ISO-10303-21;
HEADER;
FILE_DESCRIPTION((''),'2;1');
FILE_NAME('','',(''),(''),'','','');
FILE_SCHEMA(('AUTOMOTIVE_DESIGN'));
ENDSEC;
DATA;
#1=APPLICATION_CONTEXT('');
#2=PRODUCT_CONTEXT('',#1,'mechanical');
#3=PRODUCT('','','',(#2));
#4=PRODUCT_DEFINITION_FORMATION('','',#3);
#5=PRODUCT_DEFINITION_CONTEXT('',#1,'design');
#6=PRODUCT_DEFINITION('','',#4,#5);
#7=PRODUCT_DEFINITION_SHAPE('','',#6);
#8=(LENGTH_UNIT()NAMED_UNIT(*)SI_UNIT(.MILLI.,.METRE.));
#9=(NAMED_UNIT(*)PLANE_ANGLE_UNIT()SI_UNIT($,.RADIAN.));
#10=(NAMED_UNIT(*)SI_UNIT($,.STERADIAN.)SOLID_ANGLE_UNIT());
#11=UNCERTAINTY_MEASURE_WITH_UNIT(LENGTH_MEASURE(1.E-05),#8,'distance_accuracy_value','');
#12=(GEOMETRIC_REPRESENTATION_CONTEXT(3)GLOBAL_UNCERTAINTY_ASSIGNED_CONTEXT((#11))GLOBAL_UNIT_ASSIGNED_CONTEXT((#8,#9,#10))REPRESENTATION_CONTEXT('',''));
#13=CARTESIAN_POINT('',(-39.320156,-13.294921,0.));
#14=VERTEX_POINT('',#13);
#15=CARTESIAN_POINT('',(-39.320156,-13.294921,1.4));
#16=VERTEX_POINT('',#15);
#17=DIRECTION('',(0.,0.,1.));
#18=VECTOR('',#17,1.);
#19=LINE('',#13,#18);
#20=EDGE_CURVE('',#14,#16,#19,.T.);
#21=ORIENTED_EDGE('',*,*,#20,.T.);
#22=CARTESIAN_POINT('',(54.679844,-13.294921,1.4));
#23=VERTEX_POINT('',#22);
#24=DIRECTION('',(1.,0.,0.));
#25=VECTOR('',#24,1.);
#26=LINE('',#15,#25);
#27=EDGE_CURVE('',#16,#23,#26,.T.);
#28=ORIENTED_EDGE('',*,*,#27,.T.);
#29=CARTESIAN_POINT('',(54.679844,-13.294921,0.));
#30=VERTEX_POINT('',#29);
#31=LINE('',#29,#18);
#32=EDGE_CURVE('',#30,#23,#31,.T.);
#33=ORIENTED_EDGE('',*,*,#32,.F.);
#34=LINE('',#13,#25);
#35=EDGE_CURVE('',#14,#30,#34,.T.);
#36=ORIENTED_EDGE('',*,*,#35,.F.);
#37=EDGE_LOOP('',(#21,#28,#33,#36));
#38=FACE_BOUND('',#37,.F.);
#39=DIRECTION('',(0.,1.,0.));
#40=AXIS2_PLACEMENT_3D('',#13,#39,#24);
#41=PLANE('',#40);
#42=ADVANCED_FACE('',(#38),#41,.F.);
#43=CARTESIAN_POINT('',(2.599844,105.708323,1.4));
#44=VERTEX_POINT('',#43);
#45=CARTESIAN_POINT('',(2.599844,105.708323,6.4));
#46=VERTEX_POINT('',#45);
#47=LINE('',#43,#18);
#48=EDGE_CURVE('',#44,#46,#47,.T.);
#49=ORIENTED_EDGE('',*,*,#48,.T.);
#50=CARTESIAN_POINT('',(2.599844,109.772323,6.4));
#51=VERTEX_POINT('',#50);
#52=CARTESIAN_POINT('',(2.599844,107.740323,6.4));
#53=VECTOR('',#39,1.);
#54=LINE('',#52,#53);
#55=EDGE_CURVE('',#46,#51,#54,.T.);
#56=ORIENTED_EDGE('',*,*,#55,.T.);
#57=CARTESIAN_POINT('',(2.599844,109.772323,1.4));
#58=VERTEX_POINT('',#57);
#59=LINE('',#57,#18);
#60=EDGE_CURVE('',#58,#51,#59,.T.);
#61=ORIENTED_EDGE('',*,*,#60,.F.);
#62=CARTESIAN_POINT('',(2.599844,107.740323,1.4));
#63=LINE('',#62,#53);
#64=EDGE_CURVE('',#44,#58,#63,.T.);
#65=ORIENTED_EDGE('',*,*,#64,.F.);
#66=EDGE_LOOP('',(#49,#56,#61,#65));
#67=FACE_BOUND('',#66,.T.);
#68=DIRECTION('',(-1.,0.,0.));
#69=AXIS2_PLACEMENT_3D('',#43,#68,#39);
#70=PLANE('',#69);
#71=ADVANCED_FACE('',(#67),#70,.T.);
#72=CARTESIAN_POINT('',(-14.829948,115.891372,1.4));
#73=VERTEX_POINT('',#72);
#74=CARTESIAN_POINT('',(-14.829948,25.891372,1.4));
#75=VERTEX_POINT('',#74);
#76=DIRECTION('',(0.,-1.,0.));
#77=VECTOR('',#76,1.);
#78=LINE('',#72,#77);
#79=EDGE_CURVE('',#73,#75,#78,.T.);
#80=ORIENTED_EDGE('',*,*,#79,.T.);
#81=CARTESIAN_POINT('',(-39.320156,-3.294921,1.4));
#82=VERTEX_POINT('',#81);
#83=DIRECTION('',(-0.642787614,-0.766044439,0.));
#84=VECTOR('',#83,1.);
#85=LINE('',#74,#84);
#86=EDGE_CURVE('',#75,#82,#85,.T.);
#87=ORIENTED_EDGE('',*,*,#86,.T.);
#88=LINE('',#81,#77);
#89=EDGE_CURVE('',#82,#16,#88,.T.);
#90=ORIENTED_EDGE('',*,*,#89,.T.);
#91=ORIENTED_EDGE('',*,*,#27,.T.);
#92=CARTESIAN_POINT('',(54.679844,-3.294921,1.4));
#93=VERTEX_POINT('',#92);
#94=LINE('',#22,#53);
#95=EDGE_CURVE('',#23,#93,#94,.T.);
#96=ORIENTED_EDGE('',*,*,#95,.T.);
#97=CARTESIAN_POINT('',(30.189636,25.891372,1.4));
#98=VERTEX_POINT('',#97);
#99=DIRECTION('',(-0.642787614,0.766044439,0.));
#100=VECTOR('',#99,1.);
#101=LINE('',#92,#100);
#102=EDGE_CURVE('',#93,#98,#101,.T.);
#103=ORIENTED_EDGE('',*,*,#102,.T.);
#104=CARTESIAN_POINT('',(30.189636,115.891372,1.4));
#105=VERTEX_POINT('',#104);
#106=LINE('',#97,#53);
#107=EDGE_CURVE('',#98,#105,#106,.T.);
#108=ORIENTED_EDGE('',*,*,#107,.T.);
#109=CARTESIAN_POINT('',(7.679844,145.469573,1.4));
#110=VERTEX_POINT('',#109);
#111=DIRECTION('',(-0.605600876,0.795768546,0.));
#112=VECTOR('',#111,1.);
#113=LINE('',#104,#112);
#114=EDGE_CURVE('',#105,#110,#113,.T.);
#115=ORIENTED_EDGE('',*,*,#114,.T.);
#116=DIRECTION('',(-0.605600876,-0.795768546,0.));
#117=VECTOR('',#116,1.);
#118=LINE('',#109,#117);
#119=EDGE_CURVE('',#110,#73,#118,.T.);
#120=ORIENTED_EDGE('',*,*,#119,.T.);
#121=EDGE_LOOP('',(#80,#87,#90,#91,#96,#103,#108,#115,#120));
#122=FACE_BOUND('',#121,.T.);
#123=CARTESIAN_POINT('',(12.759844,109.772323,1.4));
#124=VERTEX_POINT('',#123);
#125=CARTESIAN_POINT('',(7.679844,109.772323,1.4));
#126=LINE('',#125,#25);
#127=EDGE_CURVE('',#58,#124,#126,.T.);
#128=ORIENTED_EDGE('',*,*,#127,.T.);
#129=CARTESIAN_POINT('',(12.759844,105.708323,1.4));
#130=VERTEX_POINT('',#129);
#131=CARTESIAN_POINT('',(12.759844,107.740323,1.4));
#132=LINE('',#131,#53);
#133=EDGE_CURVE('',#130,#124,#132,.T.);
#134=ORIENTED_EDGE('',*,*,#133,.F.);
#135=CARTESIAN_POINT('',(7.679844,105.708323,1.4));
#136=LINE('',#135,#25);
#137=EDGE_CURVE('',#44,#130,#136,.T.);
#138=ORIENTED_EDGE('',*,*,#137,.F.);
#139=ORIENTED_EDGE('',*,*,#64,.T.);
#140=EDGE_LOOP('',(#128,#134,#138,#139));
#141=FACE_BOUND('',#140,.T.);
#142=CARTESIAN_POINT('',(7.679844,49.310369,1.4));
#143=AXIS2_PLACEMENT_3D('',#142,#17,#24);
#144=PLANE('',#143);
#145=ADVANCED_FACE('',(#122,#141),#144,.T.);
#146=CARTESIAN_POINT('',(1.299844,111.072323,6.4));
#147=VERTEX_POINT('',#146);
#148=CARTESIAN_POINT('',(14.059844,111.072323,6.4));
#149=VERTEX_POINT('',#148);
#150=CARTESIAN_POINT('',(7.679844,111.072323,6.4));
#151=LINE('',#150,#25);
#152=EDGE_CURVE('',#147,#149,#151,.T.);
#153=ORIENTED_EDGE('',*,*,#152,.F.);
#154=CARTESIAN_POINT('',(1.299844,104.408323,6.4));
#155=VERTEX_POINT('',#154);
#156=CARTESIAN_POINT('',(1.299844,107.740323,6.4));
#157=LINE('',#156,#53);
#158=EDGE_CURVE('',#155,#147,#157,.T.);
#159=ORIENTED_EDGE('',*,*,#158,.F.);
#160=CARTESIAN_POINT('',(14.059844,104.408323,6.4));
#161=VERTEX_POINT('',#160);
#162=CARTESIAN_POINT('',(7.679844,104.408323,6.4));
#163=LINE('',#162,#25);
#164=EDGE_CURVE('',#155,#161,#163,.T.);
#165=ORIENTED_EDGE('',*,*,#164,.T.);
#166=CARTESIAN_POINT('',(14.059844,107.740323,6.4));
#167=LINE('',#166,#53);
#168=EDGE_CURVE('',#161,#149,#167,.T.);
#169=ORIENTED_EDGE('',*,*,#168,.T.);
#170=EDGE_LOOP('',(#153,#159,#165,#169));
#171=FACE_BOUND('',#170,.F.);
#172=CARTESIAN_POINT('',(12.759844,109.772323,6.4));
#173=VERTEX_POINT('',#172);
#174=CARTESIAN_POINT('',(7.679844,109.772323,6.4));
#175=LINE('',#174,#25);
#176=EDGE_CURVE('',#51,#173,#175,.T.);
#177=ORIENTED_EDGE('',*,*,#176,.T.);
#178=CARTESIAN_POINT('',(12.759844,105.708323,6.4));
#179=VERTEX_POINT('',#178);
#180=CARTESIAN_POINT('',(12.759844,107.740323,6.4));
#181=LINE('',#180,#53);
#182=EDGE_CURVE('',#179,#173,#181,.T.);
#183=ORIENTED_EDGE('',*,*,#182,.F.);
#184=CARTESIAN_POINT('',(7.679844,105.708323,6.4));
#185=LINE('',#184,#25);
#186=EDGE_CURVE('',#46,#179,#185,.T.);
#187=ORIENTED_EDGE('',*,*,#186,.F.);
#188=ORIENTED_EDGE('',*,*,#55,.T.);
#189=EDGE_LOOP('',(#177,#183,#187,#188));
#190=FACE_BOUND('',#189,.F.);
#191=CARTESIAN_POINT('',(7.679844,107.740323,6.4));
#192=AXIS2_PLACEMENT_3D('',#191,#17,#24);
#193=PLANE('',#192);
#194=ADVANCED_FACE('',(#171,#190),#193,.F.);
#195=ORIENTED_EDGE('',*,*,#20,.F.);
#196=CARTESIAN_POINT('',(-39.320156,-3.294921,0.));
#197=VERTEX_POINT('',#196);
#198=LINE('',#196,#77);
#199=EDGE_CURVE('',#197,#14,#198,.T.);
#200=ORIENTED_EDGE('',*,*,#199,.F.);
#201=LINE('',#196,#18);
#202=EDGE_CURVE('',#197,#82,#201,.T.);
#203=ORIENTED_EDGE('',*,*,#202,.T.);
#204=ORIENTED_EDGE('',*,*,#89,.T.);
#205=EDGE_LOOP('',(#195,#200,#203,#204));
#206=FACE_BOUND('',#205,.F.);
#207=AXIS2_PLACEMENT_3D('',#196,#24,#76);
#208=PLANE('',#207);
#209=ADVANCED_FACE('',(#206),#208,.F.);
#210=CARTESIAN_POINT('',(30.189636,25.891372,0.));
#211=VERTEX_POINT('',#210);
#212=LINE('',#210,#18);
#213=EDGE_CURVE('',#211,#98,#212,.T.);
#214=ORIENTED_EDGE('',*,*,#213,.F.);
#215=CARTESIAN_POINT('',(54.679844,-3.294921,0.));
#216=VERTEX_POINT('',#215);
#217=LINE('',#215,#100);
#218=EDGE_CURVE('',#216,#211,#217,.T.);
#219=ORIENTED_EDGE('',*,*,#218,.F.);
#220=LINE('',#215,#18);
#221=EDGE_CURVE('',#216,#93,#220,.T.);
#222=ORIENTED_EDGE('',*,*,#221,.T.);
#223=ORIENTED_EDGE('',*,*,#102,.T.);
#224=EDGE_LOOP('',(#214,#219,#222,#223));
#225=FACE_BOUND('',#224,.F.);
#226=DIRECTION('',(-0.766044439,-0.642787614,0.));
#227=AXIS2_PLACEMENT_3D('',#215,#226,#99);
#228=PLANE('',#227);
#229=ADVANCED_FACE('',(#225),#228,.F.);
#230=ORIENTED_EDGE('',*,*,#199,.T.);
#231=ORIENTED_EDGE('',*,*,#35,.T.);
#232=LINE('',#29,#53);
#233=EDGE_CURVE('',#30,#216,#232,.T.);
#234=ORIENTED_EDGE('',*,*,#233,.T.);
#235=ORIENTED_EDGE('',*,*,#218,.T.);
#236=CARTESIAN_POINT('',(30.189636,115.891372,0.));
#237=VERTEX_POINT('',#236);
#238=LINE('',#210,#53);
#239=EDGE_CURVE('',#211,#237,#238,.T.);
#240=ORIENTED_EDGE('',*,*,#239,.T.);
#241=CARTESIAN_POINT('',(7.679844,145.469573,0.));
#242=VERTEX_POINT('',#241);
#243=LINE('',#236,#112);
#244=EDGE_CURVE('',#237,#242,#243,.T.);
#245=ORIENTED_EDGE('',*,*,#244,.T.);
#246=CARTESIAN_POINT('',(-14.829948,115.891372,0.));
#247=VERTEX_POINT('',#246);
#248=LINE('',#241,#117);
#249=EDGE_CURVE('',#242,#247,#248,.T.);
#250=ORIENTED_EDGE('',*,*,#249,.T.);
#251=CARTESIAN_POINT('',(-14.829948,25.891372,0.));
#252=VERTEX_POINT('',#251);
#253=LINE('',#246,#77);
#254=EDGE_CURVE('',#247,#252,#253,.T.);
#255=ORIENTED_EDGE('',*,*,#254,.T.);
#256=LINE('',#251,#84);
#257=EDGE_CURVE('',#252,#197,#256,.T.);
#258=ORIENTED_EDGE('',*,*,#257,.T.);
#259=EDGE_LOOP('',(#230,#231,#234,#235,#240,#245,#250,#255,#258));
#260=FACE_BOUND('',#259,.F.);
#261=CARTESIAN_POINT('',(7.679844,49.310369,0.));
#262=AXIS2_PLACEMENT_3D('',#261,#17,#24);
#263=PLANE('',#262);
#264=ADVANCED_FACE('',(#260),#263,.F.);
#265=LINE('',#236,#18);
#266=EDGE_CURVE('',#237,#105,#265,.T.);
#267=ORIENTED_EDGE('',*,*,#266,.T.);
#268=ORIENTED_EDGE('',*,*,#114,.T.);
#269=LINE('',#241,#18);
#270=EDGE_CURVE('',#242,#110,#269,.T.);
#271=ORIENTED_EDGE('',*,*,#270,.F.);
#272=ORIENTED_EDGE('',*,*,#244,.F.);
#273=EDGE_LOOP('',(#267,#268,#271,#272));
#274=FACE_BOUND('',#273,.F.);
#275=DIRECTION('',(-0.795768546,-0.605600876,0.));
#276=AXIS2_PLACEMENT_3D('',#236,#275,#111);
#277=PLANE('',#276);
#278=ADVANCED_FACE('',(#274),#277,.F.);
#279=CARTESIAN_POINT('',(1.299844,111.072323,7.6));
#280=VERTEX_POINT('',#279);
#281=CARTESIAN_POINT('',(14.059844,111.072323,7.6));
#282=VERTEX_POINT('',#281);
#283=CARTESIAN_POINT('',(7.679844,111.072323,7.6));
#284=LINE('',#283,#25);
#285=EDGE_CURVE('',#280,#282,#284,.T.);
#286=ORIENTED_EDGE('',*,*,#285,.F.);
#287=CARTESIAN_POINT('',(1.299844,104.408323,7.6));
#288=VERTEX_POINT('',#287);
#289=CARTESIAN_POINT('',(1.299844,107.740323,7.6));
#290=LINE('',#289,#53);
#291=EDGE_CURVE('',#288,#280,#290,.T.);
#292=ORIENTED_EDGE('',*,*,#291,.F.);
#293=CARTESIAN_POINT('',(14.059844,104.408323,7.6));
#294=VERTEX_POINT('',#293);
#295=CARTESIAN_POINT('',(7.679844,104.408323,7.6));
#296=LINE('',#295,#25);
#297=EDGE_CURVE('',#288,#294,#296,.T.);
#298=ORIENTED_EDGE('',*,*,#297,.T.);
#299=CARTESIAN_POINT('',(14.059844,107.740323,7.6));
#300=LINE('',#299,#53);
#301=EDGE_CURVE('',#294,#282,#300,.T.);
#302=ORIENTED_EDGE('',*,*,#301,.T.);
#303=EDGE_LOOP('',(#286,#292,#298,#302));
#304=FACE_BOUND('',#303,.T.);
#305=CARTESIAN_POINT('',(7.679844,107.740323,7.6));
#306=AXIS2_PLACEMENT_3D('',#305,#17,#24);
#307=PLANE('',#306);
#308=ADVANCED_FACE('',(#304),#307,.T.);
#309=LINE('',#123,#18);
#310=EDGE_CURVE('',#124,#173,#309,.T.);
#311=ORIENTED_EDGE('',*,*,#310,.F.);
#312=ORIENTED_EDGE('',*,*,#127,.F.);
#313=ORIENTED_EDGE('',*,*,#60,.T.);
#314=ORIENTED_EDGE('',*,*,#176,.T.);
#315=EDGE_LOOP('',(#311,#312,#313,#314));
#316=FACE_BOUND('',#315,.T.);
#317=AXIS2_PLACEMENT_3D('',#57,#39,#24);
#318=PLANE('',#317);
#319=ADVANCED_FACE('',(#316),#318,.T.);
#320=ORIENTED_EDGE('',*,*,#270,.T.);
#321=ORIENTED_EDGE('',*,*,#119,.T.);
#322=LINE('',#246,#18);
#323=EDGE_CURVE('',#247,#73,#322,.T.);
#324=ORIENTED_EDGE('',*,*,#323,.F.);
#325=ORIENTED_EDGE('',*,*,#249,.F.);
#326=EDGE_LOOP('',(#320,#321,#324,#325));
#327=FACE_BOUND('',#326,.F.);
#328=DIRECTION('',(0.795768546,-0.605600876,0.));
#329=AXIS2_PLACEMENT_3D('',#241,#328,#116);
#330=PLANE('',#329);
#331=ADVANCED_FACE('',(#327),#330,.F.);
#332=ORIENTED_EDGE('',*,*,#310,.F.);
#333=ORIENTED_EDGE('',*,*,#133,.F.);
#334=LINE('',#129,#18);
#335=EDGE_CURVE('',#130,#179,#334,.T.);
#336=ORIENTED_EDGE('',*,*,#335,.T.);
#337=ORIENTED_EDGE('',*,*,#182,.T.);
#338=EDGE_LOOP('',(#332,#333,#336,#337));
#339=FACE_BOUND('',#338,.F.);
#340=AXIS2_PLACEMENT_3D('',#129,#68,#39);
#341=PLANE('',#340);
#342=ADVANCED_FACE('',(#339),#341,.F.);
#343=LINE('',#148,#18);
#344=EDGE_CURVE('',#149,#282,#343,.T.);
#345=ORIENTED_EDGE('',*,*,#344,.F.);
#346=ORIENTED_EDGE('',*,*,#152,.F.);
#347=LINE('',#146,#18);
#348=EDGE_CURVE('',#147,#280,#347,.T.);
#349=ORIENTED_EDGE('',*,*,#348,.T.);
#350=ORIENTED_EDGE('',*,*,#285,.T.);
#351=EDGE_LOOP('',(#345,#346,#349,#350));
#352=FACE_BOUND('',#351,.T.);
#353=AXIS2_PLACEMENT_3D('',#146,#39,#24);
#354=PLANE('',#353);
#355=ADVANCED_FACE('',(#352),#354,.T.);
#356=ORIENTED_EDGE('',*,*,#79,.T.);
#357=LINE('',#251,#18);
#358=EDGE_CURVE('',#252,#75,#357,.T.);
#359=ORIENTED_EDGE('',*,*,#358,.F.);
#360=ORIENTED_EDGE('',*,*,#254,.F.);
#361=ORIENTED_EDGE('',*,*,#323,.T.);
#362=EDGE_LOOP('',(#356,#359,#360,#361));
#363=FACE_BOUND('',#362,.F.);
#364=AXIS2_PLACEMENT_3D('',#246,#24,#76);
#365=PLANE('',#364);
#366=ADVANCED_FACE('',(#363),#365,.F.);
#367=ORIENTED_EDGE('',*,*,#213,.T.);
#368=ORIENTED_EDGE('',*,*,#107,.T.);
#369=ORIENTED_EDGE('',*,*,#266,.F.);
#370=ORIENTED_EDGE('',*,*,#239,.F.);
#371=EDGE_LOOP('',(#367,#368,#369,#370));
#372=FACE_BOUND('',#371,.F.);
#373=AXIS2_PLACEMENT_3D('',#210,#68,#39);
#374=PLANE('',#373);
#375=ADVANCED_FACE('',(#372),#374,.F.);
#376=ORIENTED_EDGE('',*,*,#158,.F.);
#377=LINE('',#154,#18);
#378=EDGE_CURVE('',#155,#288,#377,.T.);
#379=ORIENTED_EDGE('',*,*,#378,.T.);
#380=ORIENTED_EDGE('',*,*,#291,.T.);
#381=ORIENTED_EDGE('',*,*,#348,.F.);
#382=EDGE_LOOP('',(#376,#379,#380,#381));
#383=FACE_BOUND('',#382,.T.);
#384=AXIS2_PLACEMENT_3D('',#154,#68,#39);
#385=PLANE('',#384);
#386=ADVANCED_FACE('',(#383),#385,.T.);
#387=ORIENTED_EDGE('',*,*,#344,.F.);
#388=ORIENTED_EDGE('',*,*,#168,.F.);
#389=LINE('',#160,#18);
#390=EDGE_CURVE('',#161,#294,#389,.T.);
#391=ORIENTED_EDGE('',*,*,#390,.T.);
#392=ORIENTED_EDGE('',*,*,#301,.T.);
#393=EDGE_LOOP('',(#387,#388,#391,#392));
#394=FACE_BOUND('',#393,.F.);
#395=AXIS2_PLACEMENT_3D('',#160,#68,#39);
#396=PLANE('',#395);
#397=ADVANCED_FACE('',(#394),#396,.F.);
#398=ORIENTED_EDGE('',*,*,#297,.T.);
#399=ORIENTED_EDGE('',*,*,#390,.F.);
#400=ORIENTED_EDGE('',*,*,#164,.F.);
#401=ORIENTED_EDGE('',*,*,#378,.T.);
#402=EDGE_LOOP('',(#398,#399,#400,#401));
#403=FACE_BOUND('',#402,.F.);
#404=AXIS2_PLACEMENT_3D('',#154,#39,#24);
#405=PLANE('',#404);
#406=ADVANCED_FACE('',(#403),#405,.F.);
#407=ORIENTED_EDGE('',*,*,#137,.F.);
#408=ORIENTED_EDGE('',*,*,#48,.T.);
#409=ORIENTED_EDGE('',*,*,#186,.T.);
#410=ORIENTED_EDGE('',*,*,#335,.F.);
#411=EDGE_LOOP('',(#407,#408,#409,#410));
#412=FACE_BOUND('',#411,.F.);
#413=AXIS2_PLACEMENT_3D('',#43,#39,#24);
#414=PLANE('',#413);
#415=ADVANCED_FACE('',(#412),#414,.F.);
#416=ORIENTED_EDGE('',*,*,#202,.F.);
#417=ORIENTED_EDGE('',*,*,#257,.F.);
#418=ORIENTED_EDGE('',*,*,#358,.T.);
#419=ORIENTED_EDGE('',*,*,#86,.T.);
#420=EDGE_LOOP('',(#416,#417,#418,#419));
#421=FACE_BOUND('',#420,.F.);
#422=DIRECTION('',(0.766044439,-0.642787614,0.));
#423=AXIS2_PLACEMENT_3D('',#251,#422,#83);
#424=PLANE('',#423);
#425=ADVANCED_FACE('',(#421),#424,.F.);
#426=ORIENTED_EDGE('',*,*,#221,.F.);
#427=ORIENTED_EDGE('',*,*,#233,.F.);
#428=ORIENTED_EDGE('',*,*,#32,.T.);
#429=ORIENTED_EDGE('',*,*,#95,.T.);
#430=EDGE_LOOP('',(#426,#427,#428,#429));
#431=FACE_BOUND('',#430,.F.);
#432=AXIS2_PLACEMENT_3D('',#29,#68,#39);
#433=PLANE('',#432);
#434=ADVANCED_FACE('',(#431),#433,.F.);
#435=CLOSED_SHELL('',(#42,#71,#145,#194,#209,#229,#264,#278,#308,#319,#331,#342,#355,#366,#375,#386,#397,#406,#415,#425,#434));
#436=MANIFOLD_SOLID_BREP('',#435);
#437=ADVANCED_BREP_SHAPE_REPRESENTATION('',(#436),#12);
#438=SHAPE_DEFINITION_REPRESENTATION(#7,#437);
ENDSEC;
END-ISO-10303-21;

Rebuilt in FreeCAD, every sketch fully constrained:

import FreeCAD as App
import Part
import Sketcher
from FreeCAD import Vector
Q = App.Units.Quantity


def add_polygon(sketch, points):
    """Adds a closed chain of lines whose ends are joined by coincident constraints."""
    first, n = sketch.GeometryCount, len(points)
    for a, b in zip(points, points[1:] + points[:1]):
        sketch.addGeometry(Part.LineSegment(App.Vector(*a, 0), App.Vector(*b, 0)), False)
    for i in range(n):
        sketch.addConstraint(Sketcher.Constraint("Coincident", first + i, 2, first + (i + 1) % n, 1))

doc = App.newDocument("Part")
body = doc.addObject("PartDesign::Body", "Body")

# Sketch on XY plane
sketch1 = body.newObject("Sketcher::SketchObject", "Sketch")
sketch1.AttachmentSupport = (doc.getObject("XY_Plane"), [""])
sketch1.MapMode = "FlatFace"
add_polygon(sketch1, [(-39, -3), (-39, -13), (55, -13), (55, -3), (30, 26), (30, 116), (8, 145), (-15, 116), (-15, 26)])  # lines 0-8
sketch1.addConstraint([
    Sketcher.Constraint("Vertical", 0),
    Sketcher.Constraint("Horizontal", 1),
    Sketcher.Constraint("Vertical", 2),
    Sketcher.Constraint("Vertical", 4),
    Sketcher.Constraint("Vertical", 7),
    Sketcher.Constraint("Horizontal", 4, 2, 6, 2),
    Sketcher.Constraint("Horizontal", 3, 2, 7, 2),
    Sketcher.Constraint("Horizontal", 2, 2, 8, 2),
    Sketcher.Constraint("Equal", 5, 6),
    Sketcher.Constraint("Equal", 3, 8),
    Sketcher.Constraint("DistanceX", 1, 1, 1, 2, 94.0),
    Sketcher.Constraint("DistanceY", 0, 2, 0, 1, 10.0),
    Sketcher.Constraint("DistanceY", 4, 1, 4, 2, 90.0),
    Sketcher.Constraint("Angle", 3, Q("130 deg")),
    Sketcher.Constraint("Distance", 3, 38.1),
    Sketcher.Constraint("DistanceY", 4, 2, 5, 2, 29.578201),
    Sketcher.Constraint("DistanceY", 0, 2, -1, 1, 13.294921),
    Sketcher.Constraint("DistanceX", 0, 2, -1, 1, 39.320156),
])
pad1 = body.newObject("PartDesign::Pad", "Pad")
pad1.Profile = sketch1
pad1.Length = 1.4

# Sketch on XY plane
sketch2 = body.newObject("Sketcher::SketchObject", "Sketch001")
sketch2.AttachmentSupport = (doc.getObject("XY_Plane"), [""])
sketch2.MapMode = "FlatFace"
sketch2.AttachmentOffset = App.Placement(Vector(0, 0, 1.4), App.Rotation())
add_polygon(sketch2, [(2.6, 109.8), (2.6, 105.7), (12.8, 105.7), (12.8, 109.8)])  # lines 0-3
sketch2.addConstraint([
    Sketcher.Constraint("Vertical", 0),
    Sketcher.Constraint("Horizontal", 1),
    Sketcher.Constraint("Vertical", 2),
    Sketcher.Constraint("Horizontal", 3),
    Sketcher.Constraint("DistanceX", 1, 1, 1, 2, 10.16),
    Sketcher.Constraint("DistanceY", 0, 2, 0, 1, 4.064),
    Sketcher.Constraint("DistanceX", -1, 1, 0, 2, 2.599844),
    Sketcher.Constraint("DistanceY", -1, 1, 0, 2, 105.708323),
])
pad2 = body.newObject("PartDesign::Pad", "Pad001")
pad2.Profile = sketch2
pad2.Length = 5

# Sketch on XY plane
sketch3 = body.newObject("Sketcher::SketchObject", "Sketch002")
sketch3.AttachmentSupport = (doc.getObject("XY_Plane"), [""])
sketch3.MapMode = "FlatFace"
sketch3.AttachmentOffset = App.Placement(Vector(0, 0, 6.4), App.Rotation())
add_polygon(sketch3, [(1, 111), (1, 104), (14, 104), (14, 111)])  # lines 0-3
sketch3.addConstraint([
    Sketcher.Constraint("Vertical", 0),
    Sketcher.Constraint("Horizontal", 1),
    Sketcher.Constraint("Vertical", 2),
    Sketcher.Constraint("Horizontal", 3),
    Sketcher.Constraint("DistanceX", 1, 1, 1, 2, 12.76),
    Sketcher.Constraint("DistanceY", 0, 2, 0, 1, 6.664),
    Sketcher.Constraint("DistanceX", -1, 1, 0, 2, 1.299844),
    Sketcher.Constraint("DistanceY", -1, 1, 0, 2, 104.408323),
])
pad3 = body.newObject("PartDesign::Pad", "Pad002")
pad3.Profile = sketch3
pad3.Length = 1.2

doc.recompute()
